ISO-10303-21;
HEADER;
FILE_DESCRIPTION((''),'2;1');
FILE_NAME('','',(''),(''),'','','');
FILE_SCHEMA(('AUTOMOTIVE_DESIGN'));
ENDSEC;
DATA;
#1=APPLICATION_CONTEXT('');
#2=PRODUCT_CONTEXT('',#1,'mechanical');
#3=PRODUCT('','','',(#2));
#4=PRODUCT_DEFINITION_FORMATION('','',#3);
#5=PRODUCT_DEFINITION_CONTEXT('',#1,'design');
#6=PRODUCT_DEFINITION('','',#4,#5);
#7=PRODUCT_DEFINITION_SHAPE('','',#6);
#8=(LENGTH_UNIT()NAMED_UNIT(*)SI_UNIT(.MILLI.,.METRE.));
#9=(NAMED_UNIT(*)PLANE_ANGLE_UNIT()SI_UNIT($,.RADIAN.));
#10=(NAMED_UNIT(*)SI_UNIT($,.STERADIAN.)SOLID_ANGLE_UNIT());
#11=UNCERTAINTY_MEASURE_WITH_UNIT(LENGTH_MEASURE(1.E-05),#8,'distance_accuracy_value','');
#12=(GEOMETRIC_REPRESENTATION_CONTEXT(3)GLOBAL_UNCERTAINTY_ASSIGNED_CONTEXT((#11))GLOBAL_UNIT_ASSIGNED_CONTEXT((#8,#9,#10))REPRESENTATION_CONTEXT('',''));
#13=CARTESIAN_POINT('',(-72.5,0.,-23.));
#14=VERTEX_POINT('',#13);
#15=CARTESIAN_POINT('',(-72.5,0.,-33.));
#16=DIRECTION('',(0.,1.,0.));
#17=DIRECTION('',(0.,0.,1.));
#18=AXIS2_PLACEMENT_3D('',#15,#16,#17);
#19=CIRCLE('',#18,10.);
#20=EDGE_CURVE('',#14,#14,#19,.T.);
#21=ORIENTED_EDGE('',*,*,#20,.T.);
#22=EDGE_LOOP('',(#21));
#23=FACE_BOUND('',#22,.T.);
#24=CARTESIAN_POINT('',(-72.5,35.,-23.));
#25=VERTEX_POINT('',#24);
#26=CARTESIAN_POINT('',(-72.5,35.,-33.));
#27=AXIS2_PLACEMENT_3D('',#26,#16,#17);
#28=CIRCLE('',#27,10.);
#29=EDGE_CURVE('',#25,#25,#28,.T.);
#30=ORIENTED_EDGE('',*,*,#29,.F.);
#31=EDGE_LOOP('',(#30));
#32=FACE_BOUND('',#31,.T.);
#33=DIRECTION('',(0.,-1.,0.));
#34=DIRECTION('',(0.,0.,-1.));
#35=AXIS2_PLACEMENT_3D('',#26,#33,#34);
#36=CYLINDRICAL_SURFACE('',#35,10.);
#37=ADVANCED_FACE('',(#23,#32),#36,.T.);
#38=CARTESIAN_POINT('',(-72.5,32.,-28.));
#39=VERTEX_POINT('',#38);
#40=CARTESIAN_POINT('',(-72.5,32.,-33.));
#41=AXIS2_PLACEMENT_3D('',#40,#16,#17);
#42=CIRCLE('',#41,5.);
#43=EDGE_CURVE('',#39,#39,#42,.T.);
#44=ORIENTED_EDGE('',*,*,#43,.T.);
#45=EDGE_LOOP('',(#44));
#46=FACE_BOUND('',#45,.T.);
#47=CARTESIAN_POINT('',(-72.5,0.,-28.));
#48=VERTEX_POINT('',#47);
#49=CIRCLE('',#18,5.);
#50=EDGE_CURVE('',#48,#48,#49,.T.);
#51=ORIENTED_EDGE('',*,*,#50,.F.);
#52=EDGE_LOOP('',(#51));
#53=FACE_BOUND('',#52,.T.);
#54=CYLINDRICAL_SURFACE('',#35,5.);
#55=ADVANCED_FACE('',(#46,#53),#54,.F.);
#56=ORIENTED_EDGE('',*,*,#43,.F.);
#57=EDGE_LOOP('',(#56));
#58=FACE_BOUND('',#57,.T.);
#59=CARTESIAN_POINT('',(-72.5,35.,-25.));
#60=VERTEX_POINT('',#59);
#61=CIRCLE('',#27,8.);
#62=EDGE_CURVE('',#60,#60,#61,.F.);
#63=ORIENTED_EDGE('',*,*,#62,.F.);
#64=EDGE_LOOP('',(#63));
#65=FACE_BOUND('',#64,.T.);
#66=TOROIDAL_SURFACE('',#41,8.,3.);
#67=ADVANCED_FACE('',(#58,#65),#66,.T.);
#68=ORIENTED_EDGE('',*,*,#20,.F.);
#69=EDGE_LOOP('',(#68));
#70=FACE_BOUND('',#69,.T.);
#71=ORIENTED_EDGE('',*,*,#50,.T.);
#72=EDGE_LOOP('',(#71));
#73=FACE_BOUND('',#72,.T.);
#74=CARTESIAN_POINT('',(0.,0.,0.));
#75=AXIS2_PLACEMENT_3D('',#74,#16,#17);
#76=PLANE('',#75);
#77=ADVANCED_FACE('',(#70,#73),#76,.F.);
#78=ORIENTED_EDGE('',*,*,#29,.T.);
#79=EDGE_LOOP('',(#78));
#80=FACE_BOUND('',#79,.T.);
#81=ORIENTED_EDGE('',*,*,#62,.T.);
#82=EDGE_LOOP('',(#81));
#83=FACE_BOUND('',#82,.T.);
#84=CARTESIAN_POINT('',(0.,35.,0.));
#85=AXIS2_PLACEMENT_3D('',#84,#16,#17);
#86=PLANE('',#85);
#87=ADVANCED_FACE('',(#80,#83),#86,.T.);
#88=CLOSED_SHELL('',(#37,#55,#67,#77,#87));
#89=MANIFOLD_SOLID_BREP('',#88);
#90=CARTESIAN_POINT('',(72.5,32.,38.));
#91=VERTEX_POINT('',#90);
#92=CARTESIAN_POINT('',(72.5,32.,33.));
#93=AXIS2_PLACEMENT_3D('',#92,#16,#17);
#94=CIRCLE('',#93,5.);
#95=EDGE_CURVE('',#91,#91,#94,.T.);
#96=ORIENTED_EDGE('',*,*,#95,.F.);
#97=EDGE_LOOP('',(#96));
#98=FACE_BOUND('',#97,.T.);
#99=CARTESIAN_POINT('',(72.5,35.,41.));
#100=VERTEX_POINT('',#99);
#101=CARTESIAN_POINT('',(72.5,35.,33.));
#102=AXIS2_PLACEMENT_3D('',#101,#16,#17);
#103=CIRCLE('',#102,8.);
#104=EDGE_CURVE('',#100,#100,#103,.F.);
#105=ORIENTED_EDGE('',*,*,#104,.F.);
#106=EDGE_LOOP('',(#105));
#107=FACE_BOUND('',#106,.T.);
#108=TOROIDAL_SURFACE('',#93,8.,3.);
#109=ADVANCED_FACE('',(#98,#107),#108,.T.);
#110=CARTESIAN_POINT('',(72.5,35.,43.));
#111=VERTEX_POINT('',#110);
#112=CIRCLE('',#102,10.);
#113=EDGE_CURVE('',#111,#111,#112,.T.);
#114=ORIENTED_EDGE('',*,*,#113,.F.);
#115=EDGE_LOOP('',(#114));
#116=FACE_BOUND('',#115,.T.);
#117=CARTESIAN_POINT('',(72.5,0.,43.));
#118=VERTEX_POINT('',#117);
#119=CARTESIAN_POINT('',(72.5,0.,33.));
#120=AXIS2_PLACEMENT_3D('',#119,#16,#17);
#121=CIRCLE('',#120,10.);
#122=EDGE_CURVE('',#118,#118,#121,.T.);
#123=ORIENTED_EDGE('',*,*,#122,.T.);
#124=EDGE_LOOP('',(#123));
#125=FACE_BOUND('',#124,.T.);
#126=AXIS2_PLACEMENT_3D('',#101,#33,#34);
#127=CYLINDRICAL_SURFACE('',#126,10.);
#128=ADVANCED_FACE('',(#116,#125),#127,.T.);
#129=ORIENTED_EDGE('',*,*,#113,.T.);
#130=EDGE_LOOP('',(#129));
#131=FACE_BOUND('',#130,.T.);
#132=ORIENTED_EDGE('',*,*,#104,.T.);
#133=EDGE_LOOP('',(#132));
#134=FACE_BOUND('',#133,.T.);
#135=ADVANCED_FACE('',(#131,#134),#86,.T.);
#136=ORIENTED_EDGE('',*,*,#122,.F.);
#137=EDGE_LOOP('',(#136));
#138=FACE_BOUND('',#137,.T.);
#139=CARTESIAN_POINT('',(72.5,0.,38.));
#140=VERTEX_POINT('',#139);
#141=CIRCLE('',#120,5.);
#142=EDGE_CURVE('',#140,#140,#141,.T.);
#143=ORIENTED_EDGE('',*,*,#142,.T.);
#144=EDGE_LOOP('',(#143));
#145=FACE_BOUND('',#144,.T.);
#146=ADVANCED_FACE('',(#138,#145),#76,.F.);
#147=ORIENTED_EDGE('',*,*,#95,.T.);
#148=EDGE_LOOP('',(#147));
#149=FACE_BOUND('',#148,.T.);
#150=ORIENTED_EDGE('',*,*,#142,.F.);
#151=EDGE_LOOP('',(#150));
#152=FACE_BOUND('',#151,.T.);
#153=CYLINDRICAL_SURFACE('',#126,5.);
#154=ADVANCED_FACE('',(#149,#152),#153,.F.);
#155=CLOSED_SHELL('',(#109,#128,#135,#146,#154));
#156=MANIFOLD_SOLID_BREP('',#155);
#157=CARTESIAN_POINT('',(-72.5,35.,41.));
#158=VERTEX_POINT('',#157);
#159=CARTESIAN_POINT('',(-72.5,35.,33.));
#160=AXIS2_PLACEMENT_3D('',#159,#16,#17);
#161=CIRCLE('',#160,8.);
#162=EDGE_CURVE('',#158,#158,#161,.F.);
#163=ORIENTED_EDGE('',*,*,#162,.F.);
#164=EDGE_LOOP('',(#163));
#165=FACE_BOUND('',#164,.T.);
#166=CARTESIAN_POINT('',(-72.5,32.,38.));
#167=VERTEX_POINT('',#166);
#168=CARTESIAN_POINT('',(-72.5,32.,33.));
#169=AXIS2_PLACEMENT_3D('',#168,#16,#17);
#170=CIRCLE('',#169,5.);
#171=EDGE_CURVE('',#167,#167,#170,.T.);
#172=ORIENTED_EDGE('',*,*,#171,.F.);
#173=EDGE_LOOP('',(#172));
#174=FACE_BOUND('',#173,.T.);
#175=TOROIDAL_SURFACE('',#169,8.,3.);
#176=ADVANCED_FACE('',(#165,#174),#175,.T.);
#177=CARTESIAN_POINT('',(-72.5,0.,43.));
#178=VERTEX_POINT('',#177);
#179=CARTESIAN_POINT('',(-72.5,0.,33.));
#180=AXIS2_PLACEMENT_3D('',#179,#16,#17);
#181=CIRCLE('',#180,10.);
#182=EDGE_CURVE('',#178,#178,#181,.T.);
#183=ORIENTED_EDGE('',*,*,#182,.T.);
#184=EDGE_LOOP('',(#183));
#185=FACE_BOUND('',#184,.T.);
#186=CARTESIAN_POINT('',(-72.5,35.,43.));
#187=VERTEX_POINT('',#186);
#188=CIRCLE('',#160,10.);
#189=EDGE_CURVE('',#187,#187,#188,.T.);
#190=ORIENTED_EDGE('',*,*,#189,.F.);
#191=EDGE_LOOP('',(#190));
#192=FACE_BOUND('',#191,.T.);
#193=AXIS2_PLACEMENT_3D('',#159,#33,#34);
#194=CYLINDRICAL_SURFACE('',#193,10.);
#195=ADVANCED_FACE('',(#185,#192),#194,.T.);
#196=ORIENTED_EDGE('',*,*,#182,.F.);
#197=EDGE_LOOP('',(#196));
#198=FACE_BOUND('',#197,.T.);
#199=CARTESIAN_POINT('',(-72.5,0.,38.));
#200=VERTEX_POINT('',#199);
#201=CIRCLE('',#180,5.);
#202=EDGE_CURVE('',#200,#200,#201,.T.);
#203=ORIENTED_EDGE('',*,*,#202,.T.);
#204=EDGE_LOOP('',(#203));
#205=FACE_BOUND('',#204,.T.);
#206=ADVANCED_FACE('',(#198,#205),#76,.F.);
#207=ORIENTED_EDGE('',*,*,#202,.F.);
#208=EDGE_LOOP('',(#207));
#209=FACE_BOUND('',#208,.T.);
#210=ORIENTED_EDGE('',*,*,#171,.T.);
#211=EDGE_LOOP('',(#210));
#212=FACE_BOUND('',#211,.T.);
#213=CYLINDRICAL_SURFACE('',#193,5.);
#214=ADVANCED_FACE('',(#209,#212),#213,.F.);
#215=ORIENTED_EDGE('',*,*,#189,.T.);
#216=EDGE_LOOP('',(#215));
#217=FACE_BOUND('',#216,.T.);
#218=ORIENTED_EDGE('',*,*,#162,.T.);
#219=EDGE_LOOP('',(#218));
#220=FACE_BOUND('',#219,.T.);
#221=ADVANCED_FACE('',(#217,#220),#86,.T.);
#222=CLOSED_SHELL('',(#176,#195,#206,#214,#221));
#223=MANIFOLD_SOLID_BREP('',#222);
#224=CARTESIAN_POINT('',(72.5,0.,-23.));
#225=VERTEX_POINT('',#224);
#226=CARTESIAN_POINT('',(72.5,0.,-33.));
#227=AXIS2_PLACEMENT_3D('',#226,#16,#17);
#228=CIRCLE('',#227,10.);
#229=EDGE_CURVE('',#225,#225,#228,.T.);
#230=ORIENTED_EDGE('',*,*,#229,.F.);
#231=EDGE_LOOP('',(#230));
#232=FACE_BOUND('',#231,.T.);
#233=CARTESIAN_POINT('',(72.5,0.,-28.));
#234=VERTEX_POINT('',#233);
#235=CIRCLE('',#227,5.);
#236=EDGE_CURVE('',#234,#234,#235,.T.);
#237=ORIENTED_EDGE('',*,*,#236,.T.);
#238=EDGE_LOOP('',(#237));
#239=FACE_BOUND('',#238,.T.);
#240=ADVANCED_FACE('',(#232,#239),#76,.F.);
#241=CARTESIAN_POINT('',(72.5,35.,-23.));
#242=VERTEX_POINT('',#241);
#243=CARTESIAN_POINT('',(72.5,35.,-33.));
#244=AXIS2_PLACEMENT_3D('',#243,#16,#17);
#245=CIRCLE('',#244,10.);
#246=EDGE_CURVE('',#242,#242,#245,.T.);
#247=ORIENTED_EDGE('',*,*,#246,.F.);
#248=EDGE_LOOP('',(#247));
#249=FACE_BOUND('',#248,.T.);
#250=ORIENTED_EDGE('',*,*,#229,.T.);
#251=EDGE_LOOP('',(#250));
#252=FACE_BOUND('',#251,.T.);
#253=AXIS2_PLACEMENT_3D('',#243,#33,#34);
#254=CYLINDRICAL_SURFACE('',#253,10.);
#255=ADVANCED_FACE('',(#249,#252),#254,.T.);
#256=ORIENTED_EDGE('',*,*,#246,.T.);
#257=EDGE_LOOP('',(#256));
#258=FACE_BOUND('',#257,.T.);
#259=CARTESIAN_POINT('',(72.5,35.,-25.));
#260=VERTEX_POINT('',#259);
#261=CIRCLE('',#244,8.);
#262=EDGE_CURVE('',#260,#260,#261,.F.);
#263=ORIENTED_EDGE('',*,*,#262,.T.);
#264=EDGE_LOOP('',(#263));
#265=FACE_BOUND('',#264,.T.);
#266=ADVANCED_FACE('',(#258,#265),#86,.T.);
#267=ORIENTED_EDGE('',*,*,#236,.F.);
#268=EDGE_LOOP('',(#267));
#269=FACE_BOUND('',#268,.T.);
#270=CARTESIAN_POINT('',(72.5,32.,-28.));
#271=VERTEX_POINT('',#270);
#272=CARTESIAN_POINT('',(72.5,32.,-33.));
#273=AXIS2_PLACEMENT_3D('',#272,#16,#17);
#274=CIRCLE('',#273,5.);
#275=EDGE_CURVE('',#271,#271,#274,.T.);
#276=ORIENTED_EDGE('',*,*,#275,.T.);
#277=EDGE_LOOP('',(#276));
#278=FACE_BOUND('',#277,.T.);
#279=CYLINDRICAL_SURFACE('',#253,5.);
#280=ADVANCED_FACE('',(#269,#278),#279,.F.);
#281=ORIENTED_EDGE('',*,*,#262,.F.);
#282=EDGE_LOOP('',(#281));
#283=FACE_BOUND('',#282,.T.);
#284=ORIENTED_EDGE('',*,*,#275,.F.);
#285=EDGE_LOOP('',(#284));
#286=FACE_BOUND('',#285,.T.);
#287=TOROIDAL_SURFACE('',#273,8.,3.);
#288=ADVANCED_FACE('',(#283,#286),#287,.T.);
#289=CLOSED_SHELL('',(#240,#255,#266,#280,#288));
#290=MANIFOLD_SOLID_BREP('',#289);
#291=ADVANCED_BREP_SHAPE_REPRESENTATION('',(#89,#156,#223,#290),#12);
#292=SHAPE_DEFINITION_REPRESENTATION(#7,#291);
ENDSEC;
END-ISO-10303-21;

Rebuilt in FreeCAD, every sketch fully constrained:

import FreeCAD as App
import Part
import Sketcher
from FreeCAD import Vector
Q = App.Units.Quantity


def edges_at(feature, points):
    """Names of the edges that pass closest to the given points."""
    edges = feature.Shape.Edges
    near = lambda p: min(range(len(edges)), key=lambda i: edges[i].distToShape(Part.Vertex(*p))[0])
    return sorted({f"Edge{near(p) + 1}" for p in points})

doc = App.newDocument("Part")
body = doc.addObject("PartDesign::Body", "Body")

sketch1 = doc.addObject("Sketcher::SketchObject", "Sketch")
body.addObject(sketch1)
sketch1.AttachmentSupport = (doc.XZ_Plane, [""])
sketch1.MapMode = "FlatFace"
sketch1.addGeometry([
    Part.Circle(Vector(-72.5, 33, 0), Vector(0, 0, 1), 10),
    Part.Circle(Vector(-72.5, 33, 0), Vector(0, 0, 1), 5),
], False)
sketch1.addConstraint([
    Sketcher.Constraint("Coincident", 1, 3, 0, 3),
    Sketcher.Constraint("Diameter", 0, Q("20 mm")),
    Sketcher.Constraint("Diameter", 1, Q("10 mm")),
    Sketcher.Constraint("DistanceY", -1, 1, 0, 3, Q("33 mm")),
    Sketcher.Constraint("DistanceX", 0, 3, -1, 1, Q("72.5 mm")),
])
pad1 = doc.addObject("PartDesign::Pad", "Pad")
body.addObject(pad1)
pad1.Profile = sketch1
pad1.Length = 35
pad1.Reversed = True
doc.recompute()

fillet = doc.addObject("PartDesign::Fillet", "Fillet")
body.addObject(fillet)
fillet.Base = (pad1, edges_at(pad1, [(-72.5, 35, 28)]))
fillet.Radius = 3
body2 = doc.addObject("PartDesign::Body", "Body001")

sketch2 = doc.addObject("Sketcher::SketchObject", "Sketch001")
body2.addObject(sketch2)
sketch2.AttachmentSupport = (doc.getObject("XZ_Plane001"), [""])
sketch2.MapMode = "FlatFace"
sketch2.addGeometry([
    Part.Circle(Vector(-72.5, -33, 0), Vector(0, 0, 1), 10),
    Part.Circle(Vector(-72.5, -33, 0), Vector(0, 0, 1), 5),
], False)
sketch2.addConstraint([
    Sketcher.Constraint("Coincident", 1, 3, 0, 3),
    Sketcher.Constraint("Diameter", 0, Q("20 mm")),
    Sketcher.Constraint("Diameter", 1, Q("10 mm")),
    Sketcher.Constraint("DistanceY", 0, 3, -1, 1, Q("33 mm")),
    Sketcher.Constraint("DistanceX", 0, 3, -1, 1, Q("72.5 mm")),
])
pad2 = doc.addObject("PartDesign::Pad", "Pad001")
body2.addObject(pad2)
pad2.Profile = sketch2
pad2.Length = 35
pad2.Reversed = True
doc.recompute()

fillet2 = doc.addObject("PartDesign::Fillet", "Fillet001")
body2.addObject(fillet2)
fillet2.Base = (pad2, edges_at(pad2, [(-72.5, 35, -38)]))
fillet2.Radius = 3
body3 = doc.addObject("PartDesign::Body", "Body002")

sketch3 = doc.addObject("Sketcher::SketchObject", "Sketch002")
body3.addObject(sketch3)
sketch3.AttachmentSupport = (doc.getObject("XZ_Plane002"), [""])
sketch3.MapMode = "FlatFace"
sketch3.addGeometry([
    Part.Circle(Vector(72.5, 33, 0), Vector(0, 0, 1), 10),
    Part.Circle(Vector(72.5, 33, 0), Vector(0, 0, 1), 5),
], False)
sketch3.addConstraint([
    Sketcher.Constraint("Coincident", 1, 3, 0, 3),
    Sketcher.Constraint("Diameter", 0, Q("20 mm")),
    Sketcher.Constraint("Diameter", 1, Q("10 mm")),
    Sketcher.Constraint("DistanceY", -1, 1, 0, 3, Q("33 mm")),
    Sketcher.Constraint("DistanceX", -1, 1, 0, 3, Q("72.5 mm")),
])
pad3 = doc.addObject("PartDesign::Pad", "Pad002")
body3.addObject(pad3)
pad3.Profile = sketch3
pad3.Length = 35
pad3.Reversed = True
doc.recompute()

fillet3 = doc.addObject("PartDesign::Fillet", "Fillet002")
body3.addObject(fillet3)
fillet3.Base = (pad3, edges_at(pad3, [(72.5, 35, 28)]))
fillet3.Radius = 3
body4 = doc.addObject("PartDesign::Body", "Body003")

sketch4 = doc.addObject("Sketcher::SketchObject", "Sketch003")
body4.addObject(sketch4)
sketch4.AttachmentSupport = (doc.getObject("XZ_Plane003"), [""])
sketch4.MapMode = "FlatFace"
sketch4.addGeometry([
    Part.Circle(Vector(72.5, -33, 0), Vector(0, 0, 1), 10),
    Part.Circle(Vector(72.5, -33, 0), Vector(0, 0, 1), 5),
], False)
sketch4.addConstraint([
    Sketcher.Constraint("Coincident", 1, 3, 0, 3),
    Sketcher.Constraint("Diameter", 0, Q("20 mm")),
    Sketcher.Constraint("Diameter", 1, Q("10 mm")),
    Sketcher.Constraint("DistanceY", 0, 3, -1, 1, Q("33 mm")),
    Sketcher.Constraint("DistanceX", -1, 1, 0, 3, Q("72.5 mm")),
])
pad4 = doc.addObject("PartDesign::Pad", "Pad003")
body4.addObject(pad4)
pad4.Profile = sketch4
pad4.Length = 35
pad4.Reversed = True
doc.recompute()

fillet4 = doc.addObject("PartDesign::Fillet", "Fillet003")
body4.addObject(fillet4)
fillet4.Base = (pad4, edges_at(pad4, [(72.5, 35, -38)]))
fillet4.Radius = 3

doc.recompute()
